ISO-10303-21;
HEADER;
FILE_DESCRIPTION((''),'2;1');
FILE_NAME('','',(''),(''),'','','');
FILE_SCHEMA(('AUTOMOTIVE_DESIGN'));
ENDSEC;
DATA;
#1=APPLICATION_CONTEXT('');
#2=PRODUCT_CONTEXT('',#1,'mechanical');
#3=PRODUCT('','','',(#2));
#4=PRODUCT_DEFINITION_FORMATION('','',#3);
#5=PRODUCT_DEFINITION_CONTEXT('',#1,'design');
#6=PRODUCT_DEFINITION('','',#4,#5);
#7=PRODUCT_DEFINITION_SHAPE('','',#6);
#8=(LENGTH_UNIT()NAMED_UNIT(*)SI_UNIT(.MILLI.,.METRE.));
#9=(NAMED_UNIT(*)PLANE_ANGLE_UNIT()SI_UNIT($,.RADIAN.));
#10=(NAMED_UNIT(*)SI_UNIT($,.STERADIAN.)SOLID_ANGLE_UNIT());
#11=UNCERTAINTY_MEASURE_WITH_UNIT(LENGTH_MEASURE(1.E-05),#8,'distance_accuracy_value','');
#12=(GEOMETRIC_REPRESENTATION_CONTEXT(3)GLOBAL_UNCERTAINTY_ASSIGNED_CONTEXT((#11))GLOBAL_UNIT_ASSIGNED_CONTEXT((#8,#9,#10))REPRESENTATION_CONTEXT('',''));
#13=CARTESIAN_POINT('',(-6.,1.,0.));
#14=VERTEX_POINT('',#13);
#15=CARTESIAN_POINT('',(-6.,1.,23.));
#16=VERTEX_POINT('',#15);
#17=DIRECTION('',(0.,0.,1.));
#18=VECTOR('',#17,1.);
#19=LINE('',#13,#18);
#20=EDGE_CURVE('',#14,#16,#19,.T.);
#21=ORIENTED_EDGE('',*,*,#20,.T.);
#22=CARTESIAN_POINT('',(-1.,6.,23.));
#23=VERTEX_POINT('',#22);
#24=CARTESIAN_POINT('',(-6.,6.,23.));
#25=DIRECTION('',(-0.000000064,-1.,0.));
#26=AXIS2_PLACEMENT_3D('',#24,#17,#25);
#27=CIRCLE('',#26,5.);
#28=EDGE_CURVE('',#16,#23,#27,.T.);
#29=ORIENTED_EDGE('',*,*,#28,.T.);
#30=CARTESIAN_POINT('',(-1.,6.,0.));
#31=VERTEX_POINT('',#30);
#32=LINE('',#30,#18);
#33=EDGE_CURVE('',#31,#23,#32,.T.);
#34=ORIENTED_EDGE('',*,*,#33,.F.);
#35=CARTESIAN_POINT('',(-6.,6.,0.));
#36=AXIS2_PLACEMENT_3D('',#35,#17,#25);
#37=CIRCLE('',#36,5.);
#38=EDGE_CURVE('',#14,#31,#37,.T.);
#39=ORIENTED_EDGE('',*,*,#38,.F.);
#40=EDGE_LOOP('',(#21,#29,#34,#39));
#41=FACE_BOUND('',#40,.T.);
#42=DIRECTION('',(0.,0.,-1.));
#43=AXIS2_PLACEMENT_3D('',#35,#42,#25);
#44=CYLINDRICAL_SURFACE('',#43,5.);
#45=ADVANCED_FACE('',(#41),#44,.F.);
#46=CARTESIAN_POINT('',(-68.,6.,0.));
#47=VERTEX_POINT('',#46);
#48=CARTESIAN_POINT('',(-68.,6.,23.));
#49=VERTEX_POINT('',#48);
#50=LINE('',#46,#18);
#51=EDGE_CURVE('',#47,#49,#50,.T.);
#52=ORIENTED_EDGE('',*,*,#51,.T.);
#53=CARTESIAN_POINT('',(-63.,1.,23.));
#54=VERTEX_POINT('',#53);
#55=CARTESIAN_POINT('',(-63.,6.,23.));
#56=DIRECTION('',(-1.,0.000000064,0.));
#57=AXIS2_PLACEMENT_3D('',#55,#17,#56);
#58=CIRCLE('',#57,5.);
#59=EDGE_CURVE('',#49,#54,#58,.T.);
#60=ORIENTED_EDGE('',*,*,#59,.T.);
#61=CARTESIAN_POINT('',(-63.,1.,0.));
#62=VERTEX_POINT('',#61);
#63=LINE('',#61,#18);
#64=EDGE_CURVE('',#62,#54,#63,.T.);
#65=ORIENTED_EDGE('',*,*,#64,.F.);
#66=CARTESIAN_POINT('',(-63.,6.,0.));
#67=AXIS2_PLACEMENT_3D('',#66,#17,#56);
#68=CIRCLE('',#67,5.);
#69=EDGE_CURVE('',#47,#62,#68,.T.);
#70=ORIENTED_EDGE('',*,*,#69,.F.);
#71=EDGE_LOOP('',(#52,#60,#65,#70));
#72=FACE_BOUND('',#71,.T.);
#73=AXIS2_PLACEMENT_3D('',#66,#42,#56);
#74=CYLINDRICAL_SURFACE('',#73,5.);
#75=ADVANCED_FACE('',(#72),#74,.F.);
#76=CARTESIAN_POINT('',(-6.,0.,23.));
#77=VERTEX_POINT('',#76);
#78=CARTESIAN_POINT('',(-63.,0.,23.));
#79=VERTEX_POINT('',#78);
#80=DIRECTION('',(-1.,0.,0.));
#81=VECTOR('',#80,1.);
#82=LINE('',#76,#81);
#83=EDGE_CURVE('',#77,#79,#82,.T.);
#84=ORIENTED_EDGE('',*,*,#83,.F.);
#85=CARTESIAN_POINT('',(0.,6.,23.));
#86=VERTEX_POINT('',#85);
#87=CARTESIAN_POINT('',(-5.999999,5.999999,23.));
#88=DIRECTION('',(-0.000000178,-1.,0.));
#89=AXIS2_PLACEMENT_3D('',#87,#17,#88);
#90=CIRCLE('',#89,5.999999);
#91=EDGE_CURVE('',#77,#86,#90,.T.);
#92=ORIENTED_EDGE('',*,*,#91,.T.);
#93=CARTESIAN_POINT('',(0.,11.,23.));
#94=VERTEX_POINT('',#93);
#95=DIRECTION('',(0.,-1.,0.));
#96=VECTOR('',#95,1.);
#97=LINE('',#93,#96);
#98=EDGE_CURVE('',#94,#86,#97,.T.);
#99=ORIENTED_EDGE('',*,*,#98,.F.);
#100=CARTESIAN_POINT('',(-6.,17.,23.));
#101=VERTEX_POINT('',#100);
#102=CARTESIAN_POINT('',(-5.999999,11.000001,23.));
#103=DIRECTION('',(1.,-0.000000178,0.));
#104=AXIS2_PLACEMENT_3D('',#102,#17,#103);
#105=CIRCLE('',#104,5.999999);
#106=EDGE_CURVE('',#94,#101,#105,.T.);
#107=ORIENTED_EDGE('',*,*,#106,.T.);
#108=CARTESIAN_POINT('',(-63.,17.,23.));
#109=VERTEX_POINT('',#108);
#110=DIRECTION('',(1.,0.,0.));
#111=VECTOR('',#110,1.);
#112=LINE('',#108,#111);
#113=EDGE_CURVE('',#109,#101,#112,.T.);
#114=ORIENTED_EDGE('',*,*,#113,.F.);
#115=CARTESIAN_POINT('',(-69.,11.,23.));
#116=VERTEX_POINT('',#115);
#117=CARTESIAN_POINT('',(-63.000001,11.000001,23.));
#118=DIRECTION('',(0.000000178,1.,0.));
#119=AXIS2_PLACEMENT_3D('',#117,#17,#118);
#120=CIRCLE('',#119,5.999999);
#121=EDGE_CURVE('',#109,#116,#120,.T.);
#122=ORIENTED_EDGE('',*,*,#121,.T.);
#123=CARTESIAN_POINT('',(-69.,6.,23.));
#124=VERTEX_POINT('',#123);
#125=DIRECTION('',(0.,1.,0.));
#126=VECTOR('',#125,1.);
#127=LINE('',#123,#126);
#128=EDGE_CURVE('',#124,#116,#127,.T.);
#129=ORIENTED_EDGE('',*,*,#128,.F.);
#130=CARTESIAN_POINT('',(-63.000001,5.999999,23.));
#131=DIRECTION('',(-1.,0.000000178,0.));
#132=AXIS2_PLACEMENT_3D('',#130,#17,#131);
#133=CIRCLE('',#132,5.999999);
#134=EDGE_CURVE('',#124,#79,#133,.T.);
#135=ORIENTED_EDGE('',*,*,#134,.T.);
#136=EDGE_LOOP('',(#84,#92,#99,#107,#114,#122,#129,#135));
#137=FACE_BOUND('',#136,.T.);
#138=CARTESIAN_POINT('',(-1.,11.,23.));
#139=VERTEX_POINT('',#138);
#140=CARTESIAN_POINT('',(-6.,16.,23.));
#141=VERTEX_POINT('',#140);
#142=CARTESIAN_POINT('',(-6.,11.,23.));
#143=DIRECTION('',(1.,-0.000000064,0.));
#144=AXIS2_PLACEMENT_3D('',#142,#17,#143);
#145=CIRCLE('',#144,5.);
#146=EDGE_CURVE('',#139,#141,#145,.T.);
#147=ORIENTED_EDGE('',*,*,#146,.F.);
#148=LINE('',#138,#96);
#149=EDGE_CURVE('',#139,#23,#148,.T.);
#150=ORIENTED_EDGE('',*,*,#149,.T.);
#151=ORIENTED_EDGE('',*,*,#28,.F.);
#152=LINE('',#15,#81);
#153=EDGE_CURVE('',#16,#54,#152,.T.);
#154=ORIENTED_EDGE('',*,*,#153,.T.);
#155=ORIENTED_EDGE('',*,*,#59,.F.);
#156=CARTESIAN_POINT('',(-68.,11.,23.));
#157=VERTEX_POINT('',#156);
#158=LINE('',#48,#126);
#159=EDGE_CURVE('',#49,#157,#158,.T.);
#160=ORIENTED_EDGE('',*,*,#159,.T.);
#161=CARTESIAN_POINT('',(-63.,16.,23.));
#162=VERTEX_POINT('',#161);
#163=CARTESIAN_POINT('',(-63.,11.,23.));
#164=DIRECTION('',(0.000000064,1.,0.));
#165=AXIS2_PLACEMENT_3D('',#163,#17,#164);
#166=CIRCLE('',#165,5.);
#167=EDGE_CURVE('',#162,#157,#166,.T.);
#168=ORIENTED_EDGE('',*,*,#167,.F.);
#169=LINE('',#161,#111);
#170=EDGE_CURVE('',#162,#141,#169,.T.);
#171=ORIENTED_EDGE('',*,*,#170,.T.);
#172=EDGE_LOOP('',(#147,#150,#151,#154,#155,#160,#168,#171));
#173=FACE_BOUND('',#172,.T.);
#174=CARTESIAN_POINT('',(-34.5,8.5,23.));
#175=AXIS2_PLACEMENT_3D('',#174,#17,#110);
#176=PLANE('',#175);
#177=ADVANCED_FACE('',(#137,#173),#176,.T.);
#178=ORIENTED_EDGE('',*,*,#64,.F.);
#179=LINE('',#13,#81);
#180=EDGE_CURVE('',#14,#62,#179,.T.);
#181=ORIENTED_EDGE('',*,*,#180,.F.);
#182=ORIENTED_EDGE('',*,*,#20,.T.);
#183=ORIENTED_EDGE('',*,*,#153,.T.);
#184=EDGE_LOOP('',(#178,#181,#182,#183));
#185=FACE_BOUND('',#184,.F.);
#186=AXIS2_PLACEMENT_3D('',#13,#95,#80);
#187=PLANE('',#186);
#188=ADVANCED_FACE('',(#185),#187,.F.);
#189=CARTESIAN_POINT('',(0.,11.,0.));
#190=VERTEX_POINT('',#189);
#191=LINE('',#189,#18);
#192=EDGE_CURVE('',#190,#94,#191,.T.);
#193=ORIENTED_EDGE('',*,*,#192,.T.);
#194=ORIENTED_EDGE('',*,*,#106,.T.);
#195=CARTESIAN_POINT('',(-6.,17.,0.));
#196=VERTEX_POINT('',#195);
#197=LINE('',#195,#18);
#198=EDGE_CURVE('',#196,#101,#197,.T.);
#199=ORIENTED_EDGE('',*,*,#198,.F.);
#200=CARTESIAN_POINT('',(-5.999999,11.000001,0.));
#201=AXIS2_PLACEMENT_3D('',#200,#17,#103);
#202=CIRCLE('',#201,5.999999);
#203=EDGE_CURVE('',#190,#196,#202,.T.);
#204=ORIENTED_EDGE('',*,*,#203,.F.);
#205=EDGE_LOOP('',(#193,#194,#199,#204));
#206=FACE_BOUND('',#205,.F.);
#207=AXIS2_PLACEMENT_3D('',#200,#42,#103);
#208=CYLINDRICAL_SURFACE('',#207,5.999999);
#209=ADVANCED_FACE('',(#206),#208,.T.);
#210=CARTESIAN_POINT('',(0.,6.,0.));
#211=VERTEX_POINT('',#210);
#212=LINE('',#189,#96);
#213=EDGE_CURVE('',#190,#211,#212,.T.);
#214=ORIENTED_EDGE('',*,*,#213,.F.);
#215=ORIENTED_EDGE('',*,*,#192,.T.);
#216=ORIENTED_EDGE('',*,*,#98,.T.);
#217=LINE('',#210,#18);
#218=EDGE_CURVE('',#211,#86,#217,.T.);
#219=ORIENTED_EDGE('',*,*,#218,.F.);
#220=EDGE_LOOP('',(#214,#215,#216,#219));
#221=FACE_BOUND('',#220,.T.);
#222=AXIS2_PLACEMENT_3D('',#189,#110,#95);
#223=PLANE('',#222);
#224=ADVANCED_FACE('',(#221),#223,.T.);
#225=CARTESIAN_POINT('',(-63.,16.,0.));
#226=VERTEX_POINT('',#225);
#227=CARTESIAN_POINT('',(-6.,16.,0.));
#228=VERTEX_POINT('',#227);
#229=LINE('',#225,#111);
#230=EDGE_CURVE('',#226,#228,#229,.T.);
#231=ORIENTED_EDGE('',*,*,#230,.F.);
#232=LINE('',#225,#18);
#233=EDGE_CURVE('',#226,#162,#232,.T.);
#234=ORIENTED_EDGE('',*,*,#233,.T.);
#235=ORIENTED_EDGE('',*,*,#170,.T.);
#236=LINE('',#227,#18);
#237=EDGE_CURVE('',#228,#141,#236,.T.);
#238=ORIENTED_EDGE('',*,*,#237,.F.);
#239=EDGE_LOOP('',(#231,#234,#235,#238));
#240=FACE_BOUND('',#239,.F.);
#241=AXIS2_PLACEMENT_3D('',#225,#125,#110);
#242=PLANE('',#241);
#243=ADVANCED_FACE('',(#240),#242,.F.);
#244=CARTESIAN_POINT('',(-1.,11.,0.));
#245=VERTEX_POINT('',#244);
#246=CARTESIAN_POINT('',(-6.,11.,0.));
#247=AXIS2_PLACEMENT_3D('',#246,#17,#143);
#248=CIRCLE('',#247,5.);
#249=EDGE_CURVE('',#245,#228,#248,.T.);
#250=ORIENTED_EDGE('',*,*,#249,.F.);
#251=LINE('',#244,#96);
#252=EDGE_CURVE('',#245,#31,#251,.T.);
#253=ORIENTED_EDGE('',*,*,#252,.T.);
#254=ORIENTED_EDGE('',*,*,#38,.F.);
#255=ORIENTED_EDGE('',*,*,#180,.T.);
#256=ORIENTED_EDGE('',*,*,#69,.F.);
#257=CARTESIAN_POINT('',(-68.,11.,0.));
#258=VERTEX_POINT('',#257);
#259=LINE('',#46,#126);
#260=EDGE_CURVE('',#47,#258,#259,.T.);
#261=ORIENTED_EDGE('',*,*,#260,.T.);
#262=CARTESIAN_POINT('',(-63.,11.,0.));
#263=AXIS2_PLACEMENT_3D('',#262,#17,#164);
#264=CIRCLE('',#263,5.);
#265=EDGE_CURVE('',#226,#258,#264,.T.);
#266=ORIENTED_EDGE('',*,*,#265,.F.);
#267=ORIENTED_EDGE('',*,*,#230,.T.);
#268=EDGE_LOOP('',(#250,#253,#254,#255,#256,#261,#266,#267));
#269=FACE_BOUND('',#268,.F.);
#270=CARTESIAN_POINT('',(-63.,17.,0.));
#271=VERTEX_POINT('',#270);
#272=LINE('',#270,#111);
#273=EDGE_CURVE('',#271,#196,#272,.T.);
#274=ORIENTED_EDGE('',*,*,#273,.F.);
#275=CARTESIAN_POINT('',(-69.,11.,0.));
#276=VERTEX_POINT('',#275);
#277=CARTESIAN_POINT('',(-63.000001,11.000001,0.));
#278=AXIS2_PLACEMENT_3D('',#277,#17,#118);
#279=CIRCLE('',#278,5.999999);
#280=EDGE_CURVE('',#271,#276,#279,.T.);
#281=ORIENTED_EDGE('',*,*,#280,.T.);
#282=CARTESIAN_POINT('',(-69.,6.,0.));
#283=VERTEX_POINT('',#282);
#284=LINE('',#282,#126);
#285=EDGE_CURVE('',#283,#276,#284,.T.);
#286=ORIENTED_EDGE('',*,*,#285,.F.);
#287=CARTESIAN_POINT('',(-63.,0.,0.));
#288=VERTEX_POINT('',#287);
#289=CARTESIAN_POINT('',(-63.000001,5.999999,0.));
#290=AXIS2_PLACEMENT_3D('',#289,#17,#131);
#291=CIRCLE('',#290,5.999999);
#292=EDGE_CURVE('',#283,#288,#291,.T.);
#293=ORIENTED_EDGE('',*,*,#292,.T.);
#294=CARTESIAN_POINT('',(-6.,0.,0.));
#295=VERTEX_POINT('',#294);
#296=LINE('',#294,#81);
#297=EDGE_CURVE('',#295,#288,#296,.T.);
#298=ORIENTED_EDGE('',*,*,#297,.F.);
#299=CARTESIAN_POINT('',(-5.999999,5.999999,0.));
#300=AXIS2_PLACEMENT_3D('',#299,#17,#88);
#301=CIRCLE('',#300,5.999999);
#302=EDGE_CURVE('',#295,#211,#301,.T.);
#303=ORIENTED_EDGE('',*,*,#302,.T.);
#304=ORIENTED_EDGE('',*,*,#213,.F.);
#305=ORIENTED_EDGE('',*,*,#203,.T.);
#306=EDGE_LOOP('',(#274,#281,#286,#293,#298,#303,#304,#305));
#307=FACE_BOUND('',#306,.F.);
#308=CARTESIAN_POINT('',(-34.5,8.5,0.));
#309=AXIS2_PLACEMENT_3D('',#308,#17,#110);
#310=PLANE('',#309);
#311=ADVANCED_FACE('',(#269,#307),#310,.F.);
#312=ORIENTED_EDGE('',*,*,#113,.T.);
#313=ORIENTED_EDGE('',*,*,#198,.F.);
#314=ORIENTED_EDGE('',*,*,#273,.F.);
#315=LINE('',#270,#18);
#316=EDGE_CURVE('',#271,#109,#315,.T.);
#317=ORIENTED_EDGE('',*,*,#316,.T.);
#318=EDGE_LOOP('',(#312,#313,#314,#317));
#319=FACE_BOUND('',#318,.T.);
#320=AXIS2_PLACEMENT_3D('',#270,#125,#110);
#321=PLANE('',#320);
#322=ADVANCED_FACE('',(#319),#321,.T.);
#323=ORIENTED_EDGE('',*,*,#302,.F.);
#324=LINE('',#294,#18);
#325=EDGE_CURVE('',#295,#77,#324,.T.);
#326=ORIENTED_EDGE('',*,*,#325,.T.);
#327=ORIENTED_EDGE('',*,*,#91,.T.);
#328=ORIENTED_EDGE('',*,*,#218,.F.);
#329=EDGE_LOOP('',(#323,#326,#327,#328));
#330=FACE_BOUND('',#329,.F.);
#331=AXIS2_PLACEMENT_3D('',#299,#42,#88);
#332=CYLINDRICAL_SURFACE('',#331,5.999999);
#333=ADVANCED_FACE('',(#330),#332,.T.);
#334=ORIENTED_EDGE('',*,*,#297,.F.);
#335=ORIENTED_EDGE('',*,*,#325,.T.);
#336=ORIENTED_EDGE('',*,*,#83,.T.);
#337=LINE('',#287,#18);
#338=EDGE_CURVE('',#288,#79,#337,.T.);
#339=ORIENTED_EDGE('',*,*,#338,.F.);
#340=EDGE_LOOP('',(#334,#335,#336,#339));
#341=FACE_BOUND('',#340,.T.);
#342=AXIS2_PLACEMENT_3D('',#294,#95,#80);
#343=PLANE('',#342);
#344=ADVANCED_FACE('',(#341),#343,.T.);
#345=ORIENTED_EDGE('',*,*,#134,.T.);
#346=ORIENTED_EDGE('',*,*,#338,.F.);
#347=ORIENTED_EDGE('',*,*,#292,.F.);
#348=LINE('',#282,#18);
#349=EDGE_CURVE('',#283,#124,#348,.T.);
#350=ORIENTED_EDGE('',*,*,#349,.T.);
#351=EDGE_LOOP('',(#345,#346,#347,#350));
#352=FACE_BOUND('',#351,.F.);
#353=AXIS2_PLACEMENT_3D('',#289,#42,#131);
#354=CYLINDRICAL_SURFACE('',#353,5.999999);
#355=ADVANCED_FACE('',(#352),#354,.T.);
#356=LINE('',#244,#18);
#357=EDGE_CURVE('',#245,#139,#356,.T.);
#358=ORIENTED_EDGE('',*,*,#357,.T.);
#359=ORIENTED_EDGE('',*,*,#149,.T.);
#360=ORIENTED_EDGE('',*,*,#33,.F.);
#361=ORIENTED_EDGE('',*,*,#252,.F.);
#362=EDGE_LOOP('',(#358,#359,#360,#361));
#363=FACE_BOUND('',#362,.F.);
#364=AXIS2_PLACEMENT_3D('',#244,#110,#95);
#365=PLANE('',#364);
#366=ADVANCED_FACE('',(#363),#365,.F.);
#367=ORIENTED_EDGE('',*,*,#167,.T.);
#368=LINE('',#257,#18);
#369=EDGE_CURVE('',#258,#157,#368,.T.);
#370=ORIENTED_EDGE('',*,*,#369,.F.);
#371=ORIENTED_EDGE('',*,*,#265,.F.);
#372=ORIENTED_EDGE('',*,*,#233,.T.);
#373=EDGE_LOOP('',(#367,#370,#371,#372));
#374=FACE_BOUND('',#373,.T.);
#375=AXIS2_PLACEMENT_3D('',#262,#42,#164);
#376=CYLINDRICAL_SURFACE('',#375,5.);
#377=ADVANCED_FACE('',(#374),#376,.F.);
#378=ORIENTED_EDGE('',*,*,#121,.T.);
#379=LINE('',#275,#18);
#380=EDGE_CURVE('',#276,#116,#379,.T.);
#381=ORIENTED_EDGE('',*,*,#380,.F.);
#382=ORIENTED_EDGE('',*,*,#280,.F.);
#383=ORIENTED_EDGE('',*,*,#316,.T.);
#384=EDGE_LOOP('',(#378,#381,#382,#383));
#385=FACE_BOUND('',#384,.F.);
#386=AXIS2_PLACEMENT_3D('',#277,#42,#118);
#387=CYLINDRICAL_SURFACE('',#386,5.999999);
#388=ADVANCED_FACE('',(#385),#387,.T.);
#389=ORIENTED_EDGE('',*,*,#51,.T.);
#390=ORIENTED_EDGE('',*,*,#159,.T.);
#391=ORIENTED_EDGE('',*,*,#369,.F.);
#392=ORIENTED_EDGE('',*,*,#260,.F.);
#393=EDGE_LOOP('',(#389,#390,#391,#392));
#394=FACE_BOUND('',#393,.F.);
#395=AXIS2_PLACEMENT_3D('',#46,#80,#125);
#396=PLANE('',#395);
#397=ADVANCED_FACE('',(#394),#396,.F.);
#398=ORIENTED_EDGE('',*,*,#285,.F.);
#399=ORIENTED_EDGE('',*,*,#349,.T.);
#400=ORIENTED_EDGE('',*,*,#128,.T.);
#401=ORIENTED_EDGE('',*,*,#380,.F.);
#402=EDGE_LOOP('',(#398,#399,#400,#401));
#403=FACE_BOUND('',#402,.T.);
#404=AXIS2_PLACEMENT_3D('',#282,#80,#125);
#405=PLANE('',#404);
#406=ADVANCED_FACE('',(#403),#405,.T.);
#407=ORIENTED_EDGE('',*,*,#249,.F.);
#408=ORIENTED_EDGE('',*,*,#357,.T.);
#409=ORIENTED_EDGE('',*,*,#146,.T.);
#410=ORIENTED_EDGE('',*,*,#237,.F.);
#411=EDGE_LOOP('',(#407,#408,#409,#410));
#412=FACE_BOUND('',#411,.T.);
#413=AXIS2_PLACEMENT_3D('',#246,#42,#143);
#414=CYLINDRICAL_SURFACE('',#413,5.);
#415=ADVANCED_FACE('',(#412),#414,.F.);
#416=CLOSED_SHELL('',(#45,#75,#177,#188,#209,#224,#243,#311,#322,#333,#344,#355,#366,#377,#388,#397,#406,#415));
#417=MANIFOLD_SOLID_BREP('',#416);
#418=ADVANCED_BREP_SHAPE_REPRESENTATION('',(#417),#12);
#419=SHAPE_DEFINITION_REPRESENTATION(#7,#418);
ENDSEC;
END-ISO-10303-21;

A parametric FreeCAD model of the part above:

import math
import FreeCAD as App
import Part
import Sketcher

doc = App.newDocument("Part")
body = doc.addObject("PartDesign::Body", "Body")

# Sketch on XY plane
sketch1 = doc.addObject("Sketcher::SketchObject", "Sketch")
body.addObject(sketch1)
sketch1.AttachmentSupport = (doc.XY_Plane, [""])
sketch1.MapMode = "FlatFace"
sketch1.addGeometry([
    Part.ArcOfCircle(Part.Circle(App.Vector(-63, 11, 0), App.Vector(0, 0, 1), 6), math.radians(90), math.radians(180)),  # 0
    Part.LineSegment(App.Vector(-69, 11, 0), App.Vector(-69, 6, 0)),  # 1
    Part.ArcOfCircle(Part.Circle(App.Vector(-63, 6, 0), App.Vector(0, 0, 1), 6), math.radians(180), math.radians(270)),  # 2
    Part.LineSegment(App.Vector(-63, 0, 0), App.Vector(-6, 0, 0)),  # 3
    Part.ArcOfCircle(Part.Circle(App.Vector(-6, 6, 0), App.Vector(0, 0, 1), 6), math.radians(-90), math.radians(0)),  # 4
    Part.LineSegment(App.Vector(0, 6, 0), App.Vector(0, 11, 0)),  # 5
    Part.ArcOfCircle(Part.Circle(App.Vector(-6, 11, 0), App.Vector(0, 0, 1), 6), math.radians(0), math.radians(90)),  # 6
    Part.LineSegment(App.Vector(-6, 17, 0), App.Vector(-63, 17, 0)),  # 7
    Part.ArcOfCircle(Part.Circle(App.Vector(-63, 11, 0), App.Vector(0, 0, 1), 5), math.radians(90), math.radians(180)),  # 8
    Part.LineSegment(App.Vector(-63, 16, 0), App.Vector(-6, 16, 0)),  # 9
    Part.ArcOfCircle(Part.Circle(App.Vector(-6, 11, 0), App.Vector(0, 0, 1), 5), math.radians(0), math.radians(90)),  # 10
    Part.LineSegment(App.Vector(-1, 11, 0), App.Vector(-1, 6, 0)),  # 11
    Part.ArcOfCircle(Part.Circle(App.Vector(-6, 6, 0), App.Vector(0, 0, 1), 5), math.radians(-90), math.radians(0)),  # 12
    Part.LineSegment(App.Vector(-6, 1, 0), App.Vector(-63, 1, 0)),  # 13
    Part.ArcOfCircle(Part.Circle(App.Vector(-63, 6, 0), App.Vector(0, 0, 1), 5), math.radians(180), math.radians(270)),  # 14
    Part.LineSegment(App.Vector(-68, 6, 0), App.Vector(-68, 11, 0)),  # 15
], False)
sketch1.addConstraint([
    Sketcher.Constraint("Tangent", 0, 2, 1, 1),
    Sketcher.Constraint("Tangent", 1, 2, 2, 1),
    Sketcher.Constraint("Tangent", 2, 2, 3, 1),
    Sketcher.Constraint("Tangent", 3, 2, 4, 1),
    Sketcher.Constraint("Tangent", 4, 2, 5, 1),
    Sketcher.Constraint("Tangent", 5, 2, 6, 1),
    Sketcher.Constraint("Tangent", 6, 2, 7, 1),
    Sketcher.Constraint("Tangent", 7, 2, 0, 1),
    Sketcher.Constraint("Tangent", 8, 1, 9, 1),
    Sketcher.Constraint("Tangent", 9, 2, 10, 2),
    Sketcher.Constraint("Tangent", 10, 1, 11, 1),
    Sketcher.Constraint("Tangent", 11, 2, 12, 2),
    Sketcher.Constraint("Tangent", 12, 1, 13, 1),
    Sketcher.Constraint("Tangent", 13, 2, 14, 2),
    Sketcher.Constraint("Tangent", 14, 1, 15, 1),
    Sketcher.Constraint("Tangent", 15, 2, 8, 2),
    Sketcher.Constraint("Vertical", 1),
    Sketcher.Constraint("Horizontal", 3),
    Sketcher.Constraint("Vertical", 5),
    Sketcher.Constraint("Horizontal", 7),
    Sketcher.Constraint("Horizontal", 9),
    Sketcher.Constraint("Vertical", 11),
    Sketcher.Constraint("Horizontal", 13),
    Sketcher.Constraint("Vertical", 15),
    Sketcher.Constraint("Coincident", 8, 3, 0, 3),
    Sketcher.Constraint("Coincident", 10, 3, 6, 3),
    Sketcher.Constraint("Coincident", 12, 3, 4, 3),
    Sketcher.Constraint("Equal", 0, 2),
    Sketcher.Constraint("Equal", 2, 4),
    Sketcher.Constraint("Equal", 4, 6),
    Sketcher.Constraint("Equal", 12, 14),
    Sketcher.Constraint("PointOnObject", 2, 2, -1),
    Sketcher.Constraint("PointOnObject", 4, 2, -2),
    Sketcher.Constraint("Radius", 0, 5.999999),
    Sketcher.Constraint("Radius", 8, 5.0),
    Sketcher.Constraint("DistanceX", 3, 1, 3, 2, 57.0),
    Sketcher.Constraint("DistanceY", 1, 2, 1, 1, 5.0),
])
pad1 = doc.addObject("PartDesign::Pad", "Pad")
body.addObject(pad1)
pad1.Profile = sketch1
pad1.Length = 23

doc.recompute()
